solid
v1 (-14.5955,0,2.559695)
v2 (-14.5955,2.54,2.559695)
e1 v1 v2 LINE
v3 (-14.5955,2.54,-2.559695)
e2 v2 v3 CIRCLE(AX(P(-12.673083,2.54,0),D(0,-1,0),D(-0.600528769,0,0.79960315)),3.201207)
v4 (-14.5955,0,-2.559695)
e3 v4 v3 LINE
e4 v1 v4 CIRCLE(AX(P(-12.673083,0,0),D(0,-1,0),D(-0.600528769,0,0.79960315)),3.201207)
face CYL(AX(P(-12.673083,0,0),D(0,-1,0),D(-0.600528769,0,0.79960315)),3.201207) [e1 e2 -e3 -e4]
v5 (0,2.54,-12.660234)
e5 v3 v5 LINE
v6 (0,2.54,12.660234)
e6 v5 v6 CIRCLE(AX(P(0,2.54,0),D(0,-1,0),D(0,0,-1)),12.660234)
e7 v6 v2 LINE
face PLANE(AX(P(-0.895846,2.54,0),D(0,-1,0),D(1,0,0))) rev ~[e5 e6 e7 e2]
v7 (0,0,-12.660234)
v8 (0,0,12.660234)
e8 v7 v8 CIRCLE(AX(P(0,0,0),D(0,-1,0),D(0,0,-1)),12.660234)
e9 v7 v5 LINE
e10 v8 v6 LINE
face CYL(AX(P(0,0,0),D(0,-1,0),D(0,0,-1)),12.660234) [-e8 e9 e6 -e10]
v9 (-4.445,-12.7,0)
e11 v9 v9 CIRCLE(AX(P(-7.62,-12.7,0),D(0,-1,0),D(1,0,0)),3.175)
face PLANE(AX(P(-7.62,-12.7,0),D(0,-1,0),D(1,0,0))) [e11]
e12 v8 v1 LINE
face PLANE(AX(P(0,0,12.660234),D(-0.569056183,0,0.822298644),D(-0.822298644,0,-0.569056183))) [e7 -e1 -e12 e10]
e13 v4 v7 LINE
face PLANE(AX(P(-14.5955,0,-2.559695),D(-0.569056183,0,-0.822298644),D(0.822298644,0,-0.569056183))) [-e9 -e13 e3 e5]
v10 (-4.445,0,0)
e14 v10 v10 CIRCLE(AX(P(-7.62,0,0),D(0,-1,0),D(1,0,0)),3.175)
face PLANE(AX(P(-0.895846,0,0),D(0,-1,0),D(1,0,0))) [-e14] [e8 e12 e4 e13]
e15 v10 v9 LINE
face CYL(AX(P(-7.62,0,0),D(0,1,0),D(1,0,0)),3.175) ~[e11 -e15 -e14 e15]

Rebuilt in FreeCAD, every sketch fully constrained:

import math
import FreeCAD as App
import Part
import Sketcher
from FreeCAD import Vector
Q = App.Units.Quantity

doc = App.newDocument("Part")
params = doc.addObject("Spreadsheet::Sheet", "Params")
for row, (alias, value) in enumerate([
    ("sketch1_diameter", "0.25 in"),
    ("pad1_length", "0.5 in"),
    ("pad2_length", "0.1 in"),
], start=1):
    params.set(f"A{row}", alias)
    params.set(f"B{row}", "=" + value)
    params.setAlias(f"B{row}", alias)

body = doc.addObject("PartDesign::Body", "Body")

sketch1 = body.newObject("Sketcher::SketchObject", "Sketch")
sketch1.AttachmentSupport = (doc.getObject("XZ_Plane"), [""])
sketch1.MapMode = "FlatFace"
sketch1.addGeometry(Part.Circle(Vector(-7.6, 0, 0), Vector(0, 0, 1), 3.2), False)
sketch1.addConstraint(Sketcher.Constraint("PointOnObject", 0, 3, -1))
sketch1.addConstraint(Sketcher.Constraint("Diameter", 0, Q("0.25 in")))
sketch1.addConstraint(Sketcher.Constraint("DistanceX", 0, 3, -1, 1, Q("0.3 in")))
sketch1.setExpression("Constraints[1]", "Params.sketch1_diameter")
pad1 = body.newObject("PartDesign::Pad", "Pad")
pad1.Profile = sketch1
pad1.setExpression("Length", "Params.pad1_length")

sketch2 = body.newObject("Sketcher::SketchObject", "Sketch001")
sketch2.AttachmentSupport = (doc.getObject("XZ_Plane"), [""])
sketch2.MapMode = "FlatFace"
sketch2.addGeometry(Part.LineSegment(Vector(-14.6, -2.6, 0), Vector(0, -12.7, 0)), False)
sketch2.addGeometry(Part.ArcOfCircle(Part.Circle(Vector(0, 0, 0), Vector(0, 0, 1), 12.7), math.radians(-90), math.radians(90)), False)
sketch2.addGeometry(Part.LineSegment(Vector(0, 12.7, 0), Vector(-14.6, 2.6, 0)), False)
sketch2.addGeometry(Part.ArcOfCircle(Part.Circle(Vector(-12.7, 0, 0), Vector(0, 0, 1), 3.2), math.radians(127), math.radians(233)), False)
sketch2.addConstraint(Sketcher.Constraint("Coincident", 0, 2, 1, 1))
sketch2.addConstraint(Sketcher.Constraint("Coincident", 1, 2, 2, 1))
sketch2.addConstraint(Sketcher.Constraint("Coincident", 2, 2, 3, 1))
sketch2.addConstraint(Sketcher.Constraint("Coincident", 3, 2, 0, 1))
sketch2.addConstraint(Sketcher.Constraint("Coincident", 1, 3, -1, 1))
sketch2.addConstraint(Sketcher.Constraint("Symmetric", 2, 2, 3, 2, -1))
sketch2.addConstraint(Sketcher.Constraint("PointOnObject", 0, 2, -2))
sketch2.addConstraint(Sketcher.Constraint("PointOnObject", 1, 2, -2))
sketch2.addConstraint(Sketcher.Constraint("Radius", 1, Q("12.660234 mm")))
sketch2.addConstraint(Sketcher.Constraint("Radius", 3, Q("3.201207 mm")))
sketch2.addConstraint(Sketcher.Constraint("DistanceX", 2, 2, -1, 1, Q("14.5955 mm")))
sketch2.addConstraint(Sketcher.Constraint("DistanceY", 2, 2, 1, 2, Q("10.100539 mm")))
pad2 = body.newObject("PartDesign::Pad", "Pad001")
pad2.Profile = sketch2
pad2.setExpression("Length", "Params.pad2_length")
pad2.Reversed = True

doc.recompute()
